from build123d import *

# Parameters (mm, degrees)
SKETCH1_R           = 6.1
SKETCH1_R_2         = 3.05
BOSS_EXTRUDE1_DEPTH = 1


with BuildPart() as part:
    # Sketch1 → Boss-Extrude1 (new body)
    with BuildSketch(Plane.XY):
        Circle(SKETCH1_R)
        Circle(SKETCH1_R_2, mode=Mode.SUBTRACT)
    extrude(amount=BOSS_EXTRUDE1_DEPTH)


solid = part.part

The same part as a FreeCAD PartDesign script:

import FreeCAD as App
import Part
import Sketcher

V = App.Vector
Q = App.Units.Quantity

doc = App.newDocument("Part")
body = doc.addObject("PartDesign::Body", "Body")

# Sketch on XY plane
sketch1 = body.newObject("Sketcher::SketchObject", "Sketch")
sketch1.AttachmentSupport = (doc.getObject("XY_Plane"), [""])
sketch1.MapMode = "FlatFace"
sketch1.addGeometry([
    Part.Circle(V(0, 0, 0), V(0, 0, 1), 6.1),
    Part.Circle(V(0, 0, 0), V(0, 0, 1), 3.05),
], False)
sketch1.addConstraint([
    Sketcher.Constraint("Coincident", 0, 3, -1, 1),
    Sketcher.Constraint("Coincident", 1, 3, -1, 1),
    Sketcher.Constraint("Diameter", 0, Q("12.2 mm")),
    Sketcher.Constraint("Diameter", 1, Q("6.1 mm")),
])
pad1 = body.newObject("PartDesign::Pad", "Pad")
pad1.Profile = sketch1
pad1.Length = 1

doc.recompute()
